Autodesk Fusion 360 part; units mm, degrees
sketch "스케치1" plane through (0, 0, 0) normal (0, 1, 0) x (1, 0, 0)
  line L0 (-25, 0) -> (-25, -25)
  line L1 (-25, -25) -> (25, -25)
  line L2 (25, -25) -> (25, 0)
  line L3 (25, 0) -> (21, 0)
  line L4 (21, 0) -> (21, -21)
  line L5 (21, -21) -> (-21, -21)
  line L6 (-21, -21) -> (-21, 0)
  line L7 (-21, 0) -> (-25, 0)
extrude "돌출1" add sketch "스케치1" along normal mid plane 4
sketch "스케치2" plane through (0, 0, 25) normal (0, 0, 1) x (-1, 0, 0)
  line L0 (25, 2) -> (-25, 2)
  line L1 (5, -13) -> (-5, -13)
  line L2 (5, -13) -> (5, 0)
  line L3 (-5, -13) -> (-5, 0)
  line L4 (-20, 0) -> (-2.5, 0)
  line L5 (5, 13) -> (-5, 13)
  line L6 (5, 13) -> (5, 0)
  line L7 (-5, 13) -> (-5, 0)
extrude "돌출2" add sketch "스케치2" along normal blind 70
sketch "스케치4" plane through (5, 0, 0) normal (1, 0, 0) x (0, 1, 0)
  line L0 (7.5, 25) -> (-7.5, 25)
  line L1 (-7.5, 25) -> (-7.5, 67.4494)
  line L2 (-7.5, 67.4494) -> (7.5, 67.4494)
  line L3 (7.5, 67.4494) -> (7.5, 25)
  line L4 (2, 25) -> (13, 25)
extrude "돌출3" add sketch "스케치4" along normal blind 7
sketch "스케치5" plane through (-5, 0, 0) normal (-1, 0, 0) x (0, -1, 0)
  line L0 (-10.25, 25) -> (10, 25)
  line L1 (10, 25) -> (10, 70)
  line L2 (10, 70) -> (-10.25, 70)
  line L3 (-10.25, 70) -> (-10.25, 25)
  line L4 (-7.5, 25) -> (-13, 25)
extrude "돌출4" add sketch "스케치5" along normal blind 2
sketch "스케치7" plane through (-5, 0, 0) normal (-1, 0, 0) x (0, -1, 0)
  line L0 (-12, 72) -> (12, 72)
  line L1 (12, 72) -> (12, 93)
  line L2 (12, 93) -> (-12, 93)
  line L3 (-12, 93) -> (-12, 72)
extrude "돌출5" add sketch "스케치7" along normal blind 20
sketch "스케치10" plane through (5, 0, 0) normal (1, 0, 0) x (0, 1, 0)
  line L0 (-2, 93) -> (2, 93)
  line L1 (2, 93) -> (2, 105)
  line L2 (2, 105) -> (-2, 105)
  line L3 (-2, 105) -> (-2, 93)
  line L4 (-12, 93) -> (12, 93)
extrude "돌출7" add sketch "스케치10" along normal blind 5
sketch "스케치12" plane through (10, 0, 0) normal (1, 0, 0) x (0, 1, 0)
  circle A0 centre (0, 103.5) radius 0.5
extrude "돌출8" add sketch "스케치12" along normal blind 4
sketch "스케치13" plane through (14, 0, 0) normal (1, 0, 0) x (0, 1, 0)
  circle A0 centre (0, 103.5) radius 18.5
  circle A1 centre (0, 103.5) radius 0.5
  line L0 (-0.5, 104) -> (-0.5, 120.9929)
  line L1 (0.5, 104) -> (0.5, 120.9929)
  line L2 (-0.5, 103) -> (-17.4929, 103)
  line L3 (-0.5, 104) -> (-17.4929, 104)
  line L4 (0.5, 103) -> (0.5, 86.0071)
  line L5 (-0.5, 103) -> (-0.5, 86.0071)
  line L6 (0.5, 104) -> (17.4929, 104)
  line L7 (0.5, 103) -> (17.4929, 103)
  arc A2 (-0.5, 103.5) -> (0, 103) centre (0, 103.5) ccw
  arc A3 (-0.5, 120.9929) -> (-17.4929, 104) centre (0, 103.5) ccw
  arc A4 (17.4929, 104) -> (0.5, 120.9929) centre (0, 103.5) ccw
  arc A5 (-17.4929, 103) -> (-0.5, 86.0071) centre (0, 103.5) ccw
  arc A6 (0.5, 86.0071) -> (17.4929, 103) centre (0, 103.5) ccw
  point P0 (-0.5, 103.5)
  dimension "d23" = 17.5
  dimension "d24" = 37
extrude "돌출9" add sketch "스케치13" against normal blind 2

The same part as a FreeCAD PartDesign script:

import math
import FreeCAD as App
import Part
import Sketcher

doc = App.newDocument("Part")
body = doc.addObject("PartDesign::Body", "Body")

# Sketch on XZ plane
sketch1 = doc.addObject("Sketcher::SketchObject", "Sketch")
body.addObject(sketch1)
sketch1.AttachmentSupport = (doc.XZ_Plane, [""])
sketch1.MapMode = "FlatFace"
sketch1.addGeometry(Part.LineSegment(App.Vector(-21, 0, 0), App.Vector(-25, 0, 0)), False)
sketch1.addGeometry(Part.LineSegment(App.Vector(-25, 0, 0), App.Vector(-25, 25, 0)), False)
sketch1.addGeometry(Part.LineSegment(App.Vector(-25, 25, 0), App.Vector(25, 25, 0)), False)
sketch1.addGeometry(Part.LineSegment(App.Vector(25, 25, 0), App.Vector(25, 0, 0)), False)
sketch1.addGeometry(Part.LineSegment(App.Vector(25, 0, 0), App.Vector(21, 0, 0)), False)
sketch1.addGeometry(Part.LineSegment(App.Vector(21, 0, 0), App.Vector(21, 21, 0)), False)
sketch1.addGeometry(Part.LineSegment(App.Vector(21, 21, 0), App.Vector(-21, 21, 0)), False)
sketch1.addGeometry(Part.LineSegment(App.Vector(-21, 21, 0), App.Vector(-21, 0, 0)), False)
sketch1.addConstraint(Sketcher.Constraint("Coincident", 0, 2, 1, 1))
sketch1.addConstraint(Sketcher.Constraint("Coincident", 1, 2, 2, 1))
sketch1.addConstraint(Sketcher.Constraint("Coincident", 2, 2, 3, 1))
sketch1.addConstraint(Sketcher.Constraint("Coincident", 3, 2, 4, 1))
sketch1.addConstraint(Sketcher.Constraint("Coincident", 4, 2, 5, 1))
sketch1.addConstraint(Sketcher.Constraint("Coincident", 5, 2, 6, 1))
sketch1.addConstraint(Sketcher.Constraint("Coincident", 6, 2, 7, 1))
sketch1.addConstraint(Sketcher.Constraint("Coincident", 7, 2, 0, 1))
sketch1.addConstraint(Sketcher.Constraint("Horizontal", 0))
sketch1.addConstraint(Sketcher.Constraint("Vertical", 1))
sketch1.addConstraint(Sketcher.Constraint("Horizontal", 2))
sketch1.addConstraint(Sketcher.Constraint("Vertical", 3))
sketch1.addConstraint(Sketcher.Constraint("Horizontal", 4))
sketch1.addConstraint(Sketcher.Constraint("Vertical", 5))
sketch1.addConstraint(Sketcher.Constraint("Horizontal", 6))
sketch1.addConstraint(Sketcher.Constraint("Vertical", 7))
sketch1.addConstraint(Sketcher.Constraint("Symmetric", 0, 2, 3, 2, -1, 1))
sketch1.addConstraint(Sketcher.Constraint("Symmetric", 4, 2, 7, 2, -2))
sketch1.addConstraint(Sketcher.Constraint("DistanceX", 0, 2, 0, 1, 4.0))
sketch1.addConstraint(Sketcher.Constraint("DistanceX", 2, 1, 2, 2, 50.0))
sketch1.addConstraint(Sketcher.Constraint("DistanceY", 1, 1, 1, 2, 25.0))
sketch1.addConstraint(Sketcher.Constraint("DistanceY", 5, 1, 5, 2, 21.0))
pad1 = doc.addObject("PartDesign::Pad", "Pad")
body.addObject(pad1)
pad1.Profile = sketch1
pad1.Length = 4
pad1.Midplane = True

# Sketch on XY plane
sketch2 = doc.addObject("Sketcher::SketchObject", "Sketch001")
body.addObject(sketch2)
sketch2.AttachmentSupport = (doc.XY_Plane, [""])
sketch2.MapMode = "FlatFace"
sketch2.AttachmentOffset = App.Placement(App.Vector(0, 0, 25), App.Rotation())
sketch2.addGeometry(Part.LineSegment(App.Vector(-5, -13, 0), App.Vector(5, -13, 0)), False)
sketch2.addGeometry(Part.LineSegment(App.Vector(5, -13, 0), App.Vector(5, 13, 0)), False)
sketch2.addGeometry(Part.LineSegment(App.Vector(5, 13, 0), App.Vector(-5, 13, 0)), False)
sketch2.addGeometry(Part.LineSegment(App.Vector(-5, 13, 0), App.Vector(-5, -13, 0)), False)
sketch2.addConstraint(Sketcher.Constraint("Coincident", 0, 2, 1, 1))
sketch2.addConstraint(Sketcher.Constraint("Coincident", 1, 2, 2, 1))
sketch2.addConstraint(Sketcher.Constraint("Coincident", 2, 2, 3, 1))
sketch2.addConstraint(Sketcher.Constraint("Coincident", 3, 2, 0, 1))
sketch2.addConstraint(Sketcher.Constraint("Horizontal", 0))
sketch2.addConstraint(Sketcher.Constraint("Vertical", 1))
sketch2.addConstraint(Sketcher.Constraint("Horizontal", 2))
sketch2.addConstraint(Sketcher.Constraint("Vertical", 3))
sketch2.addConstraint(Sketcher.Constraint("Symmetric", 0, 2, 2, 2, -1, 1))
sketch2.addConstraint(Sketcher.Constraint("DistanceX", 0, 1, 0, 2, 10.0))
sketch2.addConstraint(Sketcher.Constraint("DistanceY", 1, 1, 1, 2, 26.0))
pad2 = doc.addObject("PartDesign::Pad", "Pad001")
body.addObject(pad2)
pad2.Profile = sketch2
pad2.Length = 70

# Sketch on YZ plane
sketch3 = doc.addObject("Sketcher::SketchObject", "Sketch002")
body.addObject(sketch3)
sketch3.AttachmentSupport = (doc.YZ_Plane, [""])
sketch3.MapMode = "FlatFace"
sketch3.AttachmentOffset = App.Placement(App.Vector(0, 0, 5), App.Rotation())
sketch3.addGeometry(Part.LineSegment(App.Vector(-8, 25, 0), App.Vector(8, 25, 0)), False)
sketch3.addGeometry(Part.LineSegment(App.Vector(8, 25, 0), App.Vector(8, 67, 0)), False)
sketch3.addGeometry(Part.LineSegment(App.Vector(8, 67, 0), App.Vector(-8, 67, 0)), False)
sketch3.addGeometry(Part.LineSegment(App.Vector(-8, 67, 0), App.Vector(-8, 25, 0)), False)
sketch3.addConstraint(Sketcher.Constraint("Coincident", 0, 2, 1, 1))
sketch3.addConstraint(Sketcher.Constraint("Coincident", 1, 2, 2, 1))
sketch3.addConstraint(Sketcher.Constraint("Coincident", 2, 2, 3, 1))
sketch3.addConstraint(Sketcher.Constraint("Coincident", 3, 2, 0, 1))
sketch3.addConstraint(Sketcher.Constraint("Horizontal", 0))
sketch3.addConstraint(Sketcher.Constraint("Vertical", 1))
sketch3.addConstraint(Sketcher.Constraint("Horizontal", 2))
sketch3.addConstraint(Sketcher.Constraint("Vertical", 3))
sketch3.addConstraint(Sketcher.Constraint("DistanceX", 0, 1, 0, 2, 15.0))
sketch3.addConstraint(Sketcher.Constraint("DistanceY", -1, 1, 0, 2, 25.0))
sketch3.addConstraint(Sketcher.Constraint("DistanceX", -1, 1, 0, 2, 7.5))
sketch3.addConstraint(Sketcher.Constraint("DistanceY", 1, 1, 1, 2, 42.4494))
pad3 = doc.addObject("PartDesign::Pad", "Pad002")
body.addObject(pad3)
pad3.Profile = sketch3
pad3.Length = 7

# Sketch on YZ plane
sketch4 = doc.addObject("Sketcher::SketchObject", "Sketch003")
body.addObject(sketch4)
sketch4.AttachmentSupport = (doc.YZ_Plane, [""])
sketch4.MapMode = "FlatFace"
sketch4.AttachmentOffset = App.Placement(App.Vector(0, 0, -5), App.Rotation())
sketch4.addGeometry(Part.LineSegment(App.Vector(10, 70, 0), App.Vector(10, 25, 0)), False)
sketch4.addGeometry(Part.LineSegment(App.Vector(10, 25, 0), App.Vector(-10, 25, 0)), False)
sketch4.addGeometry(Part.LineSegment(App.Vector(-10, 25, 0), App.Vector(-10, 70, 0)), False)
sketch4.addGeometry(Part.LineSegment(App.Vector(-10, 70, 0), App.Vector(10, 70, 0)), False)
sketch4.addConstraint(Sketcher.Constraint("Coincident", 0, 2, 1, 1))
sketch4.addConstraint(Sketcher.Constraint("Coincident", 1, 2, 2, 1))
sketch4.addConstraint(Sketcher.Constraint("Coincident", 2, 2, 3, 1))
sketch4.addConstraint(Sketcher.Constraint("Coincident", 3, 2, 0, 1))
sketch4.addConstraint(Sketcher.Constraint("Vertical", 0))
sketch4.addConstraint(Sketcher.Constraint("Horizontal", 1))
sketch4.addConstraint(Sketcher.Constraint("Vertical", 2))
sketch4.addConstraint(Sketcher.Constraint("Horizontal", 3))
sketch4.addConstraint(Sketcher.Constraint("DistanceY", 0, 2, 0, 1, 45.0))
sketch4.addConstraint(Sketcher.Constraint("DistanceY", -1, 1, 0, 2, 25.0))
sketch4.addConstraint(Sketcher.Constraint("DistanceX", 1, 2, -1, 1, 10.0))
sketch4.addConstraint(Sketcher.Constraint("DistanceX", 1, 2, 1, 1, 20.25))
pad4 = doc.addObject("PartDesign::Pad", "Pad003")
body.addObject(pad4)
pad4.Profile = sketch4
pad4.Length = 2
pad4.Reversed = True

# Sketch on YZ plane
sketch5 = doc.addObject("Sketcher::SketchObject", "Sketch004")
body.addObject(sketch5)
sketch5.AttachmentSupport = (doc.YZ_Plane, [""])
sketch5.MapMode = "FlatFace"
sketch5.AttachmentOffset = App.Placement(App.Vector(0, 0, -5), App.Rotation())
sketch5.addGeometry(Part.LineSegment(App.Vector(12, 93, 0), App.Vector(12, 72, 0)), False)
sketch5.addGeometry(Part.LineSegment(App.Vector(12, 72, 0), App.Vector(-12, 72, 0)), False)
sketch5.addGeometry(Part.LineSegment(App.Vector(-12, 72, 0), App.Vector(-12, 93, 0)), False)
sketch5.addGeometry(Part.LineSegment(App.Vector(-12, 93, 0), App.Vector(12, 93, 0)), False)
sketch5.addConstraint(Sketcher.Constraint("Coincident", 0, 2, 1, 1))
sketch5.addConstraint(Sketcher.Constraint("Coincident", 1, 2, 2, 1))
sketch5.addConstraint(Sketcher.Constraint("Coincident", 2, 2, 3, 1))
sketch5.addConstraint(Sketcher.Constraint("Coincident", 3, 2, 0, 1))
sketch5.addConstraint(Sketcher.Constraint("Vertical", 0))
sketch5.addConstraint(Sketcher.Constraint("Horizontal", 1))
sketch5.addConstraint(Sketcher.Constraint("Vertical", 2))
sketch5.addConstraint(Sketcher.Constraint("Horizontal", 3))
sketch5.addConstraint(Sketcher.Constraint("DistanceX", 1, 2, 1, 1, 24.0))
sketch5.addConstraint(Sketcher.Constraint("DistanceY", 0, 2, 0, 1, 21.0))
sketch5.addConstraint(Sketcher.Constraint("DistanceX", -1, 1, 0, 2, 12.0))
sketch5.addConstraint(Sketcher.Constraint("DistanceY", -1, 1, 0, 2, 72.0))
pad5 = doc.addObject("PartDesign::Pad", "Pad004")
body.addObject(pad5)
pad5.Profile = sketch5
pad5.Length = 20
pad5.Reversed = True

# Sketch on YZ plane
sketch6 = doc.addObject("Sketcher::SketchObject", "Sketch005")
body.addObject(sketch6)
sketch6.AttachmentSupport = (doc.YZ_Plane, [""])
sketch6.MapMode = "FlatFace"
sketch6.AttachmentOffset = App.Placement(App.Vector(0, 0, 5), App.Rotation())
sketch6.addGeometry(Part.LineSegment(App.Vector(-2, 105, 0), App.Vector(-2, 93, 0)), False)
sketch6.addGeometry(Part.LineSegment(App.Vector(-2, 93, 0), App.Vector(2, 93, 0)), False)
sketch6.addGeometry(Part.LineSegment(App.Vector(2, 93, 0), App.Vector(2, 105, 0)), False)
sketch6.addGeometry(Part.LineSegment(App.Vector(2, 105, 0), App.Vector(-2, 105, 0)), False)
sketch6.addConstraint(Sketcher.Constraint("Coincident", 0, 2, 1, 1))
sketch6.addConstraint(Sketcher.Constraint("Coincident", 1, 2, 2, 1))
sketch6.addConstraint(Sketcher.Constraint("Coincident", 2, 2, 3, 1))
sketch6.addConstraint(Sketcher.Constraint("Coincident", 3, 2, 0, 1))
sketch6.addConstraint(Sketcher.Constraint("Vertical", 0))
sketch6.addConstraint(Sketcher.Constraint("Horizontal", 1))
sketch6.addConstraint(Sketcher.Constraint("Vertical", 2))
sketch6.addConstraint(Sketcher.Constraint("Horizontal", 3))
sketch6.addConstraint(Sketcher.Constraint("DistanceX", 1, 1, 1, 2, 4.0))
sketch6.addConstraint(Sketcher.Constraint("DistanceY", 0, 2, 0, 1, 12.0))
sketch6.addConstraint(Sketcher.Constraint("DistanceX", 0, 2, -1, 1, 2.0))
sketch6.addConstraint(Sketcher.Constraint("DistanceY", -1, 1, 0, 2, 93.0))
pad6 = doc.addObject("PartDesign::Pad", "Pad005")
body.addObject(pad6)
pad6.Profile = sketch6
pad6.Length = 5

# Sketch on YZ plane
sketch7 = doc.addObject("Sketcher::SketchObject", "Sketch006")
body.addObject(sketch7)
sketch7.AttachmentSupport = (doc.YZ_Plane, [""])
sketch7.MapMode = "FlatFace"
sketch7.AttachmentOffset = App.Placement(App.Vector(0, 0, 10), App.Rotation())
sketch7.addGeometry(Part.Circle(App.Vector(0, 103.5, 0), App.Vector(0, 0, 1), 0.5), False)
sketch7.addConstraint(Sketcher.Constraint("PointOnObject", 0, 3, -2))
sketch7.addConstraint(Sketcher.Constraint("Diameter", 0, 1.0))
sketch7.addConstraint(Sketcher.Constraint("DistanceY", -1, 1, 0, 3, 103.5))
pad7 = doc.addObject("PartDesign::Pad", "Pad006")
body.addObject(pad7)
pad7.Profile = sketch7
pad7.Length = 4

# Sketch on YZ plane
sketch8 = doc.addObject("Sketcher::SketchObject", "Sketch007")
body.addObject(sketch8)
sketch8.AttachmentSupport = (doc.YZ_Plane, [""])
sketch8.MapMode = "FlatFace"
sketch8.AttachmentOffset = App.Placement(App.Vector(0, 0, 14), App.Rotation())
sketch8.addGeometry(Part.Circle(App.Vector(0, 103.5, 0), App.Vector(0, 0, 1), 18.5), False)
sketch8.addGeometry(Part.LineSegment(App.Vector(-17.5, 103, 0), App.Vector(-0.5, 103, 0)), False)
sketch8.addGeometry(Part.LineSegment(App.Vector(-0.5, 103, 0), App.Vector(-0.5, 86, 0)), False)
sketch8.addGeometry(Part.ArcOfCircle(Part.Circle(App.Vector(0, 103.5, 0), App.Vector(0, 0, 1), 17.5), math.radians(-178), math.radians(-92)), False)
sketch8.addGeometry(Part.LineSegment(App.Vector(0.5, 86, 0), App.Vector(0.5, 103, 0)), False)
sketch8.addGeometry(Part.LineSegment(App.Vector(0.5, 103, 0), App.Vector(17.5, 103, 0)), False)
sketch8.addGeometry(Part.ArcOfCircle(Part.Circle(App.Vector(0, 103.5, 0), App.Vector(0, 0, 1), 17.5), math.radians(-88), math.radians(-2)), False)
sketch8.addGeometry(Part.LineSegment(App.Vector(-0.5, 121, 0), App.Vector(-0.5, 104, 0)), False)
sketch8.addGeometry(Part.LineSegment(App.Vector(-0.5, 104, 0), App.Vector(-17.5, 104, 0)), False)
sketch8.addGeometry(Part.ArcOfCircle(Part.Circle(App.Vector(0, 103.5, 0), App.Vector(0, 0, 1), 17.5), math.radians(92), math.radians(178)), False)
sketch8.addGeometry(Part.Circle(App.Vector(0, 103.5, 0), App.Vector(0, 0, 1), 0.5), False)
sketch8.addGeometry(Part.LineSegment(App.Vector(17.5, 104, 0), App.Vector(0.5, 104, 0)), False)
sketch8.addGeometry(Part.LineSegment(App.Vector(0.5, 104, 0), App.Vector(0.5, 121, 0)), False)
sketch8.addGeometry(Part.ArcOfCircle(Part.Circle(App.Vector(0, 103.5, 0), App.Vector(0, 0, 1), 17.5), math.radians(2), math.radians(88)), False)
sketch8.addConstraint(Sketcher.Constraint("Coincident", 1, 2, 2, 1))
sketch8.addConstraint(Sketcher.Constraint("Coincident", 2, 2, 3, 2))
sketch8.addConstraint(Sketcher.Constraint("Coincident", 3, 1, 1, 1))
sketch8.addConstraint(Sketcher.Constraint("Coincident", 4, 2, 5, 1))
sketch8.addConstraint(Sketcher.Constraint("Coincident", 5, 2, 6, 2))
sketch8.addConstraint(Sketcher.Constraint("Coincident", 6, 1, 4, 1))
sketch8.addConstraint(Sketcher.Constraint("Coincident", 7, 2, 8, 1))
sketch8.addConstraint(Sketcher.Constraint("Coincident", 8, 2, 9, 2))
sketch8.addConstraint(Sketcher.Constraint("Coincident", 9, 1, 7, 1))
sketch8.addConstraint(Sketcher.Constraint("Coincident", 11, 2, 12, 1))
sketch8.addConstraint(Sketcher.Constraint("Coincident", 12, 2, 13, 2))
sketch8.addConstraint(Sketcher.Constraint("Coincident", 13, 1, 11, 1))
sketch8.addConstraint(Sketcher.Constraint("Horizontal", 1))
sketch8.addConstraint(Sketcher.Constraint("Vertical", 2))
sketch8.addConstraint(Sketcher.Constraint("Vertical", 4))
sketch8.addConstraint(Sketcher.Constraint("Horizontal", 5))
sketch8.addConstraint(Sketcher.Constraint("Vertical", 7))
sketch8.addConstraint(Sketcher.Constraint("Horizontal", 8))
sketch8.addConstraint(Sketcher.Constraint("Horizontal", 11))
sketch8.addConstraint(Sketcher.Constraint("Vertical", 12))
sketch8.addConstraint(Sketcher.Constraint("Coincident", 3, 3, 0, 3))
sketch8.addConstraint(Sketcher.Constraint("Coincident", 6, 3, 0, 3))
sketch8.addConstraint(Sketcher.Constraint("Coincident", 9, 3, 0, 3))
sketch8.addConstraint(Sketcher.Constraint("Coincident", 10, 3, 0, 3))
sketch8.addConstraint(Sketcher.Constraint("Coincident", 13, 3, 0, 3))
sketch8.addConstraint(Sketcher.Constraint("Equal", 3, 6))
sketch8.addConstraint(Sketcher.Constraint("Equal", 6, 9))
sketch8.addConstraint(Sketcher.Constraint("Equal", 9, 13))
sketch8.addConstraint(Sketcher.Constraint("Symmetric", 1, 2, 4, 2, -2))
sketch8.addConstraint(Sketcher.Constraint("Symmetric", 7, 2, 11, 2, -2))
sketch8.addConstraint(Sketcher.Constraint("PointOnObject", 0, 3, -2))
sketch8.addConstraint(Sketcher.Constraint("Vertical", 2, 2, 7, 2))
sketch8.addConstraint(Sketcher.Constraint("Vertical", 3, 1, 8, 2))
sketch8.addConstraint(Sketcher.Constraint("Equal", 11, 2))
sketch8.addConstraint(Sketcher.Constraint("Diameter", 0, 37.0))
sketch8.addConstraint(Sketcher.Constraint("Radius", 3, 17.5))
sketch8.addConstraint(Sketcher.Constraint("Diameter", 10, 1.0))
sketch8.addConstraint(Sketcher.Constraint("DistanceY", -1, 1, 1, 2, 103.0))
sketch8.addConstraint(Sketcher.Constraint("DistanceY", -1, 1, 7, 2, 104.0))
pad8 = doc.addObject("PartDesign::Pad", "Pad007")
body.addObject(pad8)
pad8.Profile = sketch8
pad8.Length = 2
pad8.Reversed = True

doc.recompute()
